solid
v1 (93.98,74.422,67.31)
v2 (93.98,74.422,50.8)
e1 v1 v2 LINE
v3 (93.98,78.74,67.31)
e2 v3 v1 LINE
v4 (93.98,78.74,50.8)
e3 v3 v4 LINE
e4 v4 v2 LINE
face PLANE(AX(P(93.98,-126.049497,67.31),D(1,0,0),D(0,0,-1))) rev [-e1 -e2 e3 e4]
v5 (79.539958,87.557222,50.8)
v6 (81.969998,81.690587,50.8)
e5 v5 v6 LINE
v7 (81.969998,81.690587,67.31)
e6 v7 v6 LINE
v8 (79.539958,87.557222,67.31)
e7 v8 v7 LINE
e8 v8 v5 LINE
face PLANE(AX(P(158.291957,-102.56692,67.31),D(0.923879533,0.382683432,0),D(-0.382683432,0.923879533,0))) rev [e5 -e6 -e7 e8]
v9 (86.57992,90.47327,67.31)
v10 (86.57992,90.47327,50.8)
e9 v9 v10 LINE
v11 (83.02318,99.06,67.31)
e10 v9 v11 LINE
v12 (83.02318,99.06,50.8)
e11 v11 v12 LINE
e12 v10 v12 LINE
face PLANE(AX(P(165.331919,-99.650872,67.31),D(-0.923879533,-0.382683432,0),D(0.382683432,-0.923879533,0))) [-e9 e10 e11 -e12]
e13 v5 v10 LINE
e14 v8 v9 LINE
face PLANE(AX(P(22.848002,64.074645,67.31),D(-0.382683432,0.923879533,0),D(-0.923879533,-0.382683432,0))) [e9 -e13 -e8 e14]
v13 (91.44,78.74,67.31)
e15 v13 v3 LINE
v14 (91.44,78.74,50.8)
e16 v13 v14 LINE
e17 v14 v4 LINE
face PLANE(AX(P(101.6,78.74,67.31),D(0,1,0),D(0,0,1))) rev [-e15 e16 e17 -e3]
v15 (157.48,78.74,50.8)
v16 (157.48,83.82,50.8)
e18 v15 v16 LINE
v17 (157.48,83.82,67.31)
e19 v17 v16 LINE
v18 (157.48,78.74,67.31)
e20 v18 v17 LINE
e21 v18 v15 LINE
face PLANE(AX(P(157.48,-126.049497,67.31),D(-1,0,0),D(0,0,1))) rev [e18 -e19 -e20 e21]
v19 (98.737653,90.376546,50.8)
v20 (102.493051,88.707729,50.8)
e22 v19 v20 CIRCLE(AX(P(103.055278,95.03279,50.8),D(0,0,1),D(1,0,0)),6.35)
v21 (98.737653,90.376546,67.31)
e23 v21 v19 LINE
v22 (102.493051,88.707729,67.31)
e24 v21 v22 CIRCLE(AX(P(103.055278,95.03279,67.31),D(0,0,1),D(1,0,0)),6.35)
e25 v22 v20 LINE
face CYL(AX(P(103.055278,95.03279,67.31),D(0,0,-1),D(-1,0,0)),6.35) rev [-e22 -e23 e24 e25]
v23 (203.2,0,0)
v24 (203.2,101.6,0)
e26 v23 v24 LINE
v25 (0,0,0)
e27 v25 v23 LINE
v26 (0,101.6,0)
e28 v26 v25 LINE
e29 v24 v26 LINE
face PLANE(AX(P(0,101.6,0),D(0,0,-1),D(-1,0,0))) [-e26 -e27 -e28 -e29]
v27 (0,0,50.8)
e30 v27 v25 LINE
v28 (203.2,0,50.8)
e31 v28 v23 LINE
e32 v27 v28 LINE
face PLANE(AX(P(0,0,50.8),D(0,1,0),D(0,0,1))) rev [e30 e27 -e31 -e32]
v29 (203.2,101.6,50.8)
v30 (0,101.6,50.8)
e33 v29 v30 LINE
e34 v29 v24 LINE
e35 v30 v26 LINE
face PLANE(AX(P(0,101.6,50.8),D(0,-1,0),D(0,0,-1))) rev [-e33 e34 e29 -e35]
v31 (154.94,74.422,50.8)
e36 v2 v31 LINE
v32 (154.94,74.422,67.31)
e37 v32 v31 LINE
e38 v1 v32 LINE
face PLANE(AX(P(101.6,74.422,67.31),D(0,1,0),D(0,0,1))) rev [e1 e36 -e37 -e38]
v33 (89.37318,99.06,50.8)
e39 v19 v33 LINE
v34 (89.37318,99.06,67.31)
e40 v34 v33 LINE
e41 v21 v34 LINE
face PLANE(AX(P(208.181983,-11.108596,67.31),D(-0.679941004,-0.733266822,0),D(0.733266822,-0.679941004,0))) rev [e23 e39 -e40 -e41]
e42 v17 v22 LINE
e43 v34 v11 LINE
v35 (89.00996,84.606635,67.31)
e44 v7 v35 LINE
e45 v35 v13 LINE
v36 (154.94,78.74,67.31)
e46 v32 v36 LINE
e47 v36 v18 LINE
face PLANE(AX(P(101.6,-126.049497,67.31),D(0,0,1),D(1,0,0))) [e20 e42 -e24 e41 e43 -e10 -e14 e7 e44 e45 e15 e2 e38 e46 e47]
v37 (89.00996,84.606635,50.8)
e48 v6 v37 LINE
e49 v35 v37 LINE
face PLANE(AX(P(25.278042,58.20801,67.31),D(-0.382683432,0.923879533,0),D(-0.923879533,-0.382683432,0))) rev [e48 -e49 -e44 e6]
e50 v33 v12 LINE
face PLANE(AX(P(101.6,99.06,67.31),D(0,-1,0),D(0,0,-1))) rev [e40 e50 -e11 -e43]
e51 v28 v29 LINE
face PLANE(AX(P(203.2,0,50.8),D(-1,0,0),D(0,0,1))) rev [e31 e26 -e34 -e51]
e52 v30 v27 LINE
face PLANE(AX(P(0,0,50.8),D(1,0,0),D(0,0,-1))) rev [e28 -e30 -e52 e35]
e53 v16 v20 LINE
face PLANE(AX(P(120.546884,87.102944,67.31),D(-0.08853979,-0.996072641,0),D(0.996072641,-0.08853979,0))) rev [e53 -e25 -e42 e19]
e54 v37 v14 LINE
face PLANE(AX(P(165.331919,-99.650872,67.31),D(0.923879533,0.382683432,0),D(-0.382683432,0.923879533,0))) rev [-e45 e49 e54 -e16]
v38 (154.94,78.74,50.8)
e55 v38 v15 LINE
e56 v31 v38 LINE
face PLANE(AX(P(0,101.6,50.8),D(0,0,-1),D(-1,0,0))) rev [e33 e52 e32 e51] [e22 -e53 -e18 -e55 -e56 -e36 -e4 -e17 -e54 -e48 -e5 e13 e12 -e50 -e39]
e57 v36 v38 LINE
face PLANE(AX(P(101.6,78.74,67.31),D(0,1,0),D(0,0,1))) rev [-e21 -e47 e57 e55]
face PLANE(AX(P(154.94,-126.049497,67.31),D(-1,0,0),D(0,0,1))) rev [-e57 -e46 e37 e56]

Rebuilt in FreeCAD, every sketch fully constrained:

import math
import FreeCAD as App
import Part
import Sketcher

V = App.Vector
Q = App.Units.Quantity

doc = App.newDocument("Part")
body = doc.addObject("PartDesign::Body", "Body")

sketch1 = body.newObject("Sketcher::SketchObject", "Sketch")
sketch1.AttachmentSupport = (doc.getObject("XY_Plane"), [""])
sketch1.MapMode = "FlatFace"
sketch1.addGeometry([
    Part.LineSegment(V(0, 102, 0), V(0, 0, 0)),
    Part.LineSegment(V(0, 0, 0), V(203, 0, 0)),
    Part.LineSegment(V(203, 0, 0), V(203, 102, 0)),
    Part.LineSegment(V(203, 102, 0), V(0, 102, 0)),
], False)
sketch1.addConstraint([
    Sketcher.Constraint("Coincident", 0, 2, 1, 1),
    Sketcher.Constraint("Coincident", 1, 2, 2, 1),
    Sketcher.Constraint("Coincident", 2, 2, 3, 1),
    Sketcher.Constraint("Coincident", 3, 2, 0, 1),
    Sketcher.Constraint("Vertical", 0),
    Sketcher.Constraint("Horizontal", 1),
    Sketcher.Constraint("Vertical", 2),
    Sketcher.Constraint("Horizontal", 3),
    Sketcher.Constraint("Coincident", 0, 2, -1, 1),
    Sketcher.Constraint("DistanceX", 1, 1, 1, 2, Q("8 in")),
    Sketcher.Constraint("DistanceY", 0, 2, 0, 1, Q("4 in")),
])
pad1 = body.newObject("PartDesign::Pad", "Pad")
pad1.Profile = sketch1
pad1.Length = Q("2 in")

sketch2 = body.newObject("Sketcher::SketchObject", "Sketch001")
sketch2.AttachmentSupport = (doc.getObject("XY_Plane"), [""])
sketch2.MapMode = "FlatFace"
sketch2.AttachmentOffset = App.Placement(V(0, 0, 2 * 25.4), App.Rotation())
sketch2.addGeometry([
    Part.ArcOfCircle(Part.Circle(V(103.1, 95, 0), V(0, 0, 1), 6.4), math.radians(-133), math.radians(-95)),
    Part.LineSegment(V(98.7, 90.4, 0), V(89.4, 99.1, 0)),
    Part.LineSegment(V(89.4, 99.1, 0), V(83, 99.1, 0)),
    Part.LineSegment(V(83, 99.1, 0), V(86.6, 90.5, 0)),
    Part.LineSegment(V(86.6, 90.5, 0), V(79.5, 87.6, 0)),
    Part.LineSegment(V(79.5, 87.6, 0), V(82, 81.7, 0)),
    Part.LineSegment(V(82, 81.7, 0), V(89, 84.6, 0)),
    Part.LineSegment(V(89, 84.6, 0), V(91.4, 78.7, 0)),
    Part.LineSegment(V(91.4, 78.7, 0), V(94, 78.7, 0)),
    Part.LineSegment(V(94, 78.7, 0), V(94, 74.4, 0)),
    Part.LineSegment(V(94, 74.4, 0), V(154.9, 74.4, 0)),
    Part.LineSegment(V(154.9, 74.4, 0), V(154.9, 78.7, 0)),
    Part.LineSegment(V(154.9, 78.7, 0), V(157.5, 78.7, 0)),
    Part.LineSegment(V(157.5, 78.7, 0), V(157.5, 83.8, 0)),
    Part.LineSegment(V(157.5, 83.8, 0), V(102.5, 88.7, 0)),
], False)
sketch2.addConstraint([
    Sketcher.Constraint("Tangent", 0, 1, 1, 1),
    Sketcher.Constraint("Coincident", 1, 2, 2, 1),
    Sketcher.Constraint("Coincident", 2, 2, 3, 1),
    Sketcher.Constraint("Coincident", 3, 2, 4, 1),
    Sketcher.Constraint("Coincident", 4, 2, 5, 1),
    Sketcher.Constraint("Coincident", 5, 2, 6, 1),
    Sketcher.Constraint("Coincident", 6, 2, 7, 1),
    Sketcher.Constraint("Coincident", 7, 2, 8, 1),
    Sketcher.Constraint("Coincident", 8, 2, 9, 1),
    Sketcher.Constraint("Coincident", 9, 2, 10, 1),
    Sketcher.Constraint("Coincident", 10, 2, 11, 1),
    Sketcher.Constraint("Coincident", 11, 2, 12, 1),
    Sketcher.Constraint("Coincident", 12, 2, 13, 1),
    Sketcher.Constraint("Coincident", 13, 2, 14, 1),
    Sketcher.Constraint("Tangent", 14, 2, 0, 2),
    Sketcher.Constraint("Horizontal", 2),
    Sketcher.Constraint("Horizontal", 8),
    Sketcher.Constraint("Vertical", 9),
    Sketcher.Constraint("Horizontal", 10),
    Sketcher.Constraint("Vertical", 11),
    Sketcher.Constraint("Horizontal", 12),
    Sketcher.Constraint("Vertical", 13),
    Sketcher.Constraint("Perpendicular", 3, 4),
    Sketcher.Constraint("Perpendicular", 4, 5),
    Sketcher.Constraint("Perpendicular", 5, 6),
    Sketcher.Constraint("Perpendicular", 6, 7),
    Sketcher.Constraint("Horizontal", 8, 2, 11, 2),
    Sketcher.Constraint("Equal", 8, 12),
    Sketcher.Constraint("Equal", 4, 6),
    Sketcher.Constraint("Equal", 5, 7),
    Sketcher.Constraint("Radius", 0, Q("0.25 in")),
    Sketcher.Constraint("DistanceX", 8, 1, 8, 2, Q("0.1 in")),
    Sketcher.Constraint("DistanceX", 10, 1, 10, 2, Q("2.4 in")),
    Sketcher.Constraint("DistanceY", 13, 1, 13, 2, Q("0.2 in")),
    Sketcher.Constraint("Distance", 4, Q("0.3 in")),
    Sketcher.Constraint("DistanceX", 2, 2, 2, 1, Q("0.25 in")),
    Sketcher.Constraint("DistanceY", 9, 2, 9, 1, Q("0.17 in")),
    Sketcher.Constraint("DistanceY", -1, 1, 1, 2, Q("3.9 in")),
    Sketcher.Constraint("DistanceX", -1, 1, 7, 2, Q("3.6 in")),
    Sketcher.Constraint("DistanceY", -1, 1, 7, 2, Q("3.1 in")),
    Sketcher.Constraint("Angle", 3, Q("-67.5 deg")),
    Sketcher.Constraint("Distance", 5, Q("0.25 in")),
    Sketcher.Constraint("DistanceX", 4, 2, 0, 3, Q("0.9258 in")),
    Sketcher.Constraint("DistanceY", -1, 1, 0, 3, Q("95.03279 mm")),
])
pad2 = body.newObject("PartDesign::Pad", "Pad001")
pad2.Profile = sketch2
pad2.Length = Q("0.65 in")

doc.recompute()
